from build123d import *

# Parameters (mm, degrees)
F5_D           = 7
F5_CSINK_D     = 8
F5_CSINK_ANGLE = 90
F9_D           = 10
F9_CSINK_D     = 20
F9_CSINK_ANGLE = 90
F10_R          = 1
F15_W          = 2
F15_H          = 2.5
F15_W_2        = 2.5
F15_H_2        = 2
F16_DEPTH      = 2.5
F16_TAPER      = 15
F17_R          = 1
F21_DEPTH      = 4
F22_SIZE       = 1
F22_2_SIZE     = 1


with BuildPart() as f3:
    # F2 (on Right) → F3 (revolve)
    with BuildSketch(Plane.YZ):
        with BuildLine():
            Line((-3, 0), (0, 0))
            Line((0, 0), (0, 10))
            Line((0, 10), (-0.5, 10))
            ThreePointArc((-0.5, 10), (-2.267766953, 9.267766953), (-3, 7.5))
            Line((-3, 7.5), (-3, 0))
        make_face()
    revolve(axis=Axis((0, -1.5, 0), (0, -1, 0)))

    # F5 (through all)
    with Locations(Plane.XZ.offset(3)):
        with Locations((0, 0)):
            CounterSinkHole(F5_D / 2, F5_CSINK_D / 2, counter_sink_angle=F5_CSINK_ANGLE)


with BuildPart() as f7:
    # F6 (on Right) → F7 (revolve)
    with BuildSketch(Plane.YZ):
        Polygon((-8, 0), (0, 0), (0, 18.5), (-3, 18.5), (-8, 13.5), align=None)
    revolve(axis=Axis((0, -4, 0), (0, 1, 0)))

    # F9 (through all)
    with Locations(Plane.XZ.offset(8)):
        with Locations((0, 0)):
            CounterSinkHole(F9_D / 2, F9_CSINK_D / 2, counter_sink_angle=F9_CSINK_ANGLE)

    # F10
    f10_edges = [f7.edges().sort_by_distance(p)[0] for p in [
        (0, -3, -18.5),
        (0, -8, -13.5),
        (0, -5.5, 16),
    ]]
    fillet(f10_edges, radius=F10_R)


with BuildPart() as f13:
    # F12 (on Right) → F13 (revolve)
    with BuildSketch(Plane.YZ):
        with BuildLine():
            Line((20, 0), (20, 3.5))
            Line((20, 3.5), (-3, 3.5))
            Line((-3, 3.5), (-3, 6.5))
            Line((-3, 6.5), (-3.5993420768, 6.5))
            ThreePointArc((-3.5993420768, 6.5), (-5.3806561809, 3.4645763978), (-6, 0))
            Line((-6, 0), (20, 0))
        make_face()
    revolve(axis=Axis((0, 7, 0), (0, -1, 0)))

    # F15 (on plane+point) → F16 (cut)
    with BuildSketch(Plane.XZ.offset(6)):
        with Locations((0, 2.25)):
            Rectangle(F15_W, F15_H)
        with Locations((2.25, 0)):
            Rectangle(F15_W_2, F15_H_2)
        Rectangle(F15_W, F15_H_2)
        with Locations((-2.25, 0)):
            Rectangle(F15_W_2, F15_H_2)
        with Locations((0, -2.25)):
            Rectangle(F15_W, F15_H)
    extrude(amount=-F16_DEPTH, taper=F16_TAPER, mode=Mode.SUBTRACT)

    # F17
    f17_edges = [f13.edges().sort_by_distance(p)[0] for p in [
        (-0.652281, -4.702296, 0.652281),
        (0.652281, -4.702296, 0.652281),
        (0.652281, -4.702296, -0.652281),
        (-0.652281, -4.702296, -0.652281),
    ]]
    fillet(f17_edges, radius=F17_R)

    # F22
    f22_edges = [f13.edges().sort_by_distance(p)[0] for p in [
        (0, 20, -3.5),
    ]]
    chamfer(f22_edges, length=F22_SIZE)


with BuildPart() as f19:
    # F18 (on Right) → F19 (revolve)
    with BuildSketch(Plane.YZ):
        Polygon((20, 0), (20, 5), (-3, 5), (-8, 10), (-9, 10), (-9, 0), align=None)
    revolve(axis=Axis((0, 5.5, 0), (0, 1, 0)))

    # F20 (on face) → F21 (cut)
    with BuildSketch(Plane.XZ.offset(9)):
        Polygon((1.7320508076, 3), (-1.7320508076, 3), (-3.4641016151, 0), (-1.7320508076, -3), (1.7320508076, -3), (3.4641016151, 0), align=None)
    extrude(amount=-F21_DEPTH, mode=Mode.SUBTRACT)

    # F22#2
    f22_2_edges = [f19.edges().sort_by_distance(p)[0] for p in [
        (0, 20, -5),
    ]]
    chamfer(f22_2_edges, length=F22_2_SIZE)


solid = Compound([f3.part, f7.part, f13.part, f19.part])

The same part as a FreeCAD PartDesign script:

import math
import FreeCAD as App
import Part
import Sketcher
Q = App.Units.Quantity


def edges_at(feature, points):
    """Names of the edges that pass closest to the given points."""
    edges = feature.Shape.Edges
    near = lambda p: min(range(len(edges)), key=lambda i: edges[i].distToShape(Part.Vertex(*p))[0])
    return sorted({f"Edge{near(p) + 1}" for p in points})

doc = App.newDocument("Part")
params = doc.addObject("Spreadsheet::Sheet", "Params")
for row, (alias, value) in enumerate([
    ("sketch1_radius", "2.5 mm"),
    ("sketch1_width", "3 mm"),
    ("sketch1_height", "10 mm"),
    ("revolution_angle", "360 deg"),
    ("sketch2_diameter", "7 mm"),
    ("hole_diameter", "7 mm"),
    ("hole_csink_diameter", "8 mm"),
    ("sketch3_width", "8 mm"),
    ("sketch3_width2", "3 mm"),
    ("sketch3_height", "18.5 mm"),
    ("revolution2_angle", "360 deg"),
    ("sketch4_diameter", "10 mm"),
    ("hole2_diameter", "10 mm"),
    ("hole2_csink_diameter", "20 mm"),
    ("fillet_radius", "1 mm"),
    ("sketch5_radius", "10 mm"),
    ("sketch5_width", "23 mm"),
    ("sketch5_width2", "26 mm"),
    ("sketch5_height", "3 mm"),
    ("sketch5_height2", "3.5 mm"),
    ("revolution3_angle", "360 deg"),
    ("sketch6_width", "2 mm"),
    ("sketch6_width2", "2.5 mm"),
    ("pocket1_length", "2.5 mm"),
    ("pocket1_taper", "-15 deg"),
    ("fillet2_radius", "1 mm"),
    ("chamfer_size", "1 mm"),
    ("sketch7_width", "23 mm"),
    ("sketch7_width2", "1 mm"),
    ("sketch7_width3", "29 mm"),
    ("sketch7_height", "5 mm"),
    ("sketch7_height2", "10 mm"),
    ("revolution4_angle", "360 deg"),
    ("pocket2_length", "4 mm"),
    ("chamfer2_size", "1 mm"),
], start=1):
    params.set(f"A{row}", alias)
    params.set(f"B{row}", "=" + value)
    params.setAlias(f"B{row}", alias)

body = doc.addObject("PartDesign::Body", "Body")

# Sketch on YZ plane
sketch1 = doc.addObject("Sketcher::SketchObject", "Sketch")
body.addObject(sketch1)
sketch1.AttachmentSupport = (doc.YZ_Plane, [""])
sketch1.MapMode = "FlatFace"
sketch1.addGeometry([
    Part.LineSegment(App.Vector(-3, 0, 0), App.Vector(0, 0, 0)),  # 0
    Part.LineSegment(App.Vector(0, 0, 0), App.Vector(0, 10, 0)),  # 1
    Part.LineSegment(App.Vector(0, 10, 0), App.Vector(-0.5, 10, 0)),  # 2
    Part.ArcOfCircle(Part.Circle(App.Vector(-0.5, 7.5, 0), App.Vector(0, 0, 1), 2.5), math.radians(90), math.radians(180)),  # 3
    Part.LineSegment(App.Vector(-3, 7.5, 0), App.Vector(-3, 0, 0)),  # 4
], False)
sketch1.addConstraint([
    Sketcher.Constraint("Coincident", 0, 2, 1, 1),
    Sketcher.Constraint("Coincident", 1, 2, 2, 1),
    Sketcher.Constraint("Tangent", 2, 2, 3, 1),
    Sketcher.Constraint("Tangent", 3, 2, 4, 1),
    Sketcher.Constraint("Coincident", 4, 2, 0, 1),
    Sketcher.Constraint("Horizontal", 0),
    Sketcher.Constraint("Vertical", 1),
    Sketcher.Constraint("Horizontal", 2),
    Sketcher.Constraint("Vertical", 4),
    Sketcher.Constraint("Coincident", 0, 2, -1, 1),
    Sketcher.Constraint("Radius", 3, Q("2.5 mm")),
    Sketcher.Constraint("DistanceX", 0, 1, 0, 2, Q("3 mm")),
    Sketcher.Constraint("DistanceY", 1, 1, 1, 2, Q("10 mm")),
])
sketch1.setExpression("Constraints[10]", "Params.sketch1_radius")
sketch1.setExpression("Constraints[11]", "Params.sketch1_width")
sketch1.setExpression("Constraints[12]", "Params.sketch1_height")
revolution = doc.addObject("PartDesign::Revolution", "Revolution")
body.addObject(revolution)
revolution.Profile = sketch1
revolution.ReferenceAxis = (sketch1, ["H_Axis"])
revolution.setExpression("Angle", "Params.revolution_angle")

# Sketch on XZ plane
sketch2 = doc.addObject("Sketcher::SketchObject", "Sketch001")
body.addObject(sketch2)
sketch2.AttachmentSupport = (doc.XZ_Plane, [""])
sketch2.MapMode = "FlatFace"
sketch2.AttachmentOffset = App.Placement(App.Vector(0, 0, 3), App.Rotation())
sketch2.addGeometry(Part.Circle(App.Vector(0, 0, 0), App.Vector(0, 0, 1), 3.5), False)
sketch2.addConstraint([
    Sketcher.Constraint("Coincident", 0, 3, -1, 1),
    Sketcher.Constraint("Diameter", 0, Q("7 mm")),
])
sketch2.setExpression("Constraints[1]", "Params.sketch2_diameter")
doc.recompute()
hole = doc.addObject("PartDesign::Hole", "Hole")
body.addObject(hole)
hole.Profile = sketch2
hole.ThreadType = "None"
hole.setExpression("Diameter", "Params.hole_diameter")
hole.DepthType = "ThroughAll"
hole.HoleCutType = "Countersink"
hole.setExpression("HoleCutDiameter", "Params.hole_csink_diameter")
hole.HoleCutCountersinkAngle = 90
body2 = doc.addObject("PartDesign::Body", "Body001")

# Sketch on YZ plane
sketch3 = doc.addObject("Sketcher::SketchObject", "Sketch002")
body2.addObject(sketch3)
sketch3.AttachmentSupport = (doc.getObject("YZ_Plane001"), [""])
sketch3.MapMode = "FlatFace"
sketch3.addGeometry([
    Part.LineSegment(App.Vector(-8, 0, 0), App.Vector(0, 0, 0)),  # 0
    Part.LineSegment(App.Vector(0, 0, 0), App.Vector(0, 18.5, 0)),  # 1
    Part.LineSegment(App.Vector(0, 18.5, 0), App.Vector(-3, 18.5, 0)),  # 2
    Part.LineSegment(App.Vector(-3, 18.5, 0), App.Vector(-8, 13.5, 0)),  # 3
    Part.LineSegment(App.Vector(-8, 13.5, 0), App.Vector(-8, 0, 0)),  # 4
], False)
sketch3.addConstraint([
    Sketcher.Constraint("Coincident", 0, 2, 1, 1),
    Sketcher.Constraint("Coincident", 1, 2, 2, 1),
    Sketcher.Constraint("Coincident", 2, 2, 3, 1),
    Sketcher.Constraint("Coincident", 3, 2, 4, 1),
    Sketcher.Constraint("Coincident", 4, 2, 0, 1),
    Sketcher.Constraint("Horizontal", 0),
    Sketcher.Constraint("Vertical", 1),
    Sketcher.Constraint("Horizontal", 2),
    Sketcher.Constraint("Vertical", 4),
    Sketcher.Constraint("Coincident", 0, 2, -1, 1),
    Sketcher.Constraint("DistanceX", 0, 1, 0, 2, Q("8 mm")),
    Sketcher.Constraint("DistanceX", 2, 2, 2, 1, Q("3 mm")),
    Sketcher.Constraint("Angle", 3, Q("-135 deg")),
    Sketcher.Constraint("DistanceY", 1, 1, 1, 2, Q("18.5 mm")),
])
sketch3.setExpression("Constraints[10]", "Params.sketch3_width")
sketch3.setExpression("Constraints[11]", "Params.sketch3_width2")
sketch3.setExpression("Constraints[13]", "Params.sketch3_height")
revolution2 = doc.addObject("PartDesign::Revolution", "Revolution001")
body2.addObject(revolution2)
revolution2.Profile = sketch3
revolution2.ReferenceAxis = (sketch3, ["H_Axis"])
revolution2.setExpression("Angle", "Params.revolution2_angle")

# Sketch on XZ plane
sketch4 = doc.addObject("Sketcher::SketchObject", "Sketch003")
body2.addObject(sketch4)
sketch4.AttachmentSupport = (doc.getObject("XZ_Plane001"), [""])
sketch4.MapMode = "FlatFace"
sketch4.AttachmentOffset = App.Placement(App.Vector(0, 0, 8), App.Rotation())
sketch4.addGeometry(Part.Circle(App.Vector(0, 0, 0), App.Vector(0, 0, 1), 5), False)
sketch4.addConstraint([
    Sketcher.Constraint("Coincident", 0, 3, -1, 1),
    Sketcher.Constraint("Diameter", 0, Q("10 mm")),
])
sketch4.setExpression("Constraints[1]", "Params.sketch4_diameter")
doc.recompute()
hole2 = doc.addObject("PartDesign::Hole", "Hole001")
body2.addObject(hole2)
hole2.Profile = sketch4
hole2.ThreadType = "None"
hole2.setExpression("Diameter", "Params.hole2_diameter")
hole2.DepthType = "ThroughAll"
hole2.HoleCutType = "Countersink"
hole2.setExpression("HoleCutDiameter", "Params.hole2_csink_diameter")
hole2.HoleCutCountersinkAngle = 90
doc.recompute()

fillet = doc.addObject("PartDesign::Fillet", "Fillet")
body2.addObject(fillet)
fillet.Base = (hole2, edges_at(hole2, [(0, -3, -18.5), (0, -8, -13.5), (0, -5.5, 16)]))
fillet.setExpression("Radius", "Params.fillet_radius")
body3 = doc.addObject("PartDesign::Body", "Body002")

# Sketch on YZ plane
sketch5 = doc.addObject("Sketcher::SketchObject", "Sketch004")
body3.addObject(sketch5)
sketch5.AttachmentSupport = (doc.getObject("YZ_Plane002"), [""])
sketch5.MapMode = "FlatFace"
sketch5.addGeometry([
    Part.LineSegment(App.Vector(20, 0, 0), App.Vector(20, 3.5, 0)),  # 0
    Part.LineSegment(App.Vector(20, 3.5, 0), App.Vector(-3, 3.5, 0)),  # 1
    Part.LineSegment(App.Vector(-3, 3.5, 0), App.Vector(-3, 6.5, 0)),  # 2
    Part.LineSegment(App.Vector(-3, 6.5, 0), App.Vector(-3.599342, 6.5, 0)),  # 3
    Part.ArcOfCircle(Part.Circle(App.Vector(4, 0, 0), App.Vector(0, 0, 1), 10), math.radians(139.458398), math.radians(180)),  # 4
    Part.LineSegment(App.Vector(-6, 0, 0), App.Vector(20, 0, 0)),  # 5
], False)
sketch5.addConstraint([
    Sketcher.Constraint("Coincident", 0, 2, 1, 1),
    Sketcher.Constraint("Coincident", 1, 2, 2, 1),
    Sketcher.Constraint("Coincident", 2, 2, 3, 1),
    Sketcher.Constraint("Coincident", 3, 2, 4, 1),
    Sketcher.Constraint("Coincident", 4, 2, 5, 1),
    Sketcher.Constraint("Coincident", 5, 2, 0, 1),
    Sketcher.Constraint("Vertical", 0),
    Sketcher.Constraint("Horizontal", 1),
    Sketcher.Constraint("Vertical", 2),
    Sketcher.Constraint("Horizontal", 3),
    Sketcher.Constraint("Horizontal", 5),
    Sketcher.Constraint("PointOnObject", 4, 3, -1),
    Sketcher.Constraint("PointOnObject", 4, 2, -1),
    Sketcher.Constraint("Radius", 4, Q("10 mm")),
    Sketcher.Constraint("DistanceX", 1, 2, 1, 1, Q("23 mm")),
    Sketcher.Constraint("DistanceX", 5, 1, 5, 2, Q("26 mm")),
    Sketcher.Constraint("DistanceY", 2, 1, 2, 2, Q("3 mm")),
    Sketcher.Constraint("DistanceY", 0, 1, 0, 2, Q("3.5 mm")),
    Sketcher.Constraint("DistanceX", -1, 1, 4, 3, Q("4 mm")),
])
sketch5.setExpression("Constraints[13]", "Params.sketch5_radius")
sketch5.setExpression("Constraints[14]", "Params.sketch5_width")
sketch5.setExpression("Constraints[15]", "Params.sketch5_width2")
sketch5.setExpression("Constraints[16]", "Params.sketch5_height")
sketch5.setExpression("Constraints[17]", "Params.sketch5_height2")
revolution3 = doc.addObject("PartDesign::Revolution", "Revolution002")
body3.addObject(revolution3)
revolution3.Profile = sketch5
revolution3.ReferenceAxis = (sketch5, ["H_Axis"])
revolution3.setExpression("Angle", "Params.revolution3_angle")

# Sketch on XZ plane
sketch6 = doc.addObject("Sketcher::SketchObject", "Sketch005")
body3.addObject(sketch6)
sketch6.AttachmentSupport = (doc.getObject("XZ_Plane002"), [""])
sketch6.MapMode = "FlatFace"
sketch6.AttachmentOffset = App.Placement(App.Vector(0, 0, 6), App.Rotation())
sketch6.addGeometry([
    Part.LineSegment(App.Vector(-1, 3.5, 0), App.Vector(-1, 1, 0)),  # 0
    Part.LineSegment(App.Vector(-1, 1, 0), App.Vector(-3.5, 1, 0)),  # 1
    Part.LineSegment(App.Vector(-3.5, 1, 0), App.Vector(-3.5, -1, 0)),  # 2
    Part.LineSegment(App.Vector(-3.5, -1, 0), App.Vector(-1, -1, 0)),  # 3
    Part.LineSegment(App.Vector(-1, -1, 0), App.Vector(-1, -3.5, 0)),  # 4
    Part.LineSegment(App.Vector(-1, -3.5, 0), App.Vector(1, -3.5, 0)),  # 5
    Part.LineSegment(App.Vector(1, -3.5, 0), App.Vector(1, -1, 0)),  # 6
    Part.LineSegment(App.Vector(1, -1, 0), App.Vector(3.5, -1, 0)),  # 7
    Part.LineSegment(App.Vector(3.5, -1, 0), App.Vector(3.5, 1, 0)),  # 8
    Part.LineSegment(App.Vector(3.5, 1, 0), App.Vector(1, 1, 0)),  # 9
    Part.LineSegment(App.Vector(1, 1, 0), App.Vector(1, 3.5, 0)),  # 10
    Part.LineSegment(App.Vector(1, 3.5, 0), App.Vector(-1, 3.5, 0)),  # 11
], False)
sketch6.addConstraint([
    Sketcher.Constraint("Coincident", 0, 2, 1, 1),
    Sketcher.Constraint("Coincident", 1, 2, 2, 1),
    Sketcher.Constraint("Coincident", 2, 2, 3, 1),
    Sketcher.Constraint("Coincident", 3, 2, 4, 1),
    Sketcher.Constraint("Coincident", 4, 2, 5, 1),
    Sketcher.Constraint("Coincident", 5, 2, 6, 1),
    Sketcher.Constraint("Coincident", 6, 2, 7, 1),
    Sketcher.Constraint("Coincident", 7, 2, 8, 1),
    Sketcher.Constraint("Coincident", 8, 2, 9, 1),
    Sketcher.Constraint("Coincident", 9, 2, 10, 1),
    Sketcher.Constraint("Coincident", 10, 2, 11, 1),
    Sketcher.Constraint("Coincident", 11, 2, 0, 1),
    Sketcher.Constraint("Vertical", 0),
    Sketcher.Constraint("Horizontal", 1),
    Sketcher.Constraint("Vertical", 2),
    Sketcher.Constraint("Horizontal", 3),
    Sketcher.Constraint("Vertical", 4),
    Sketcher.Constraint("Horizontal", 5),
    Sketcher.Constraint("Vertical", 6),
    Sketcher.Constraint("Horizontal", 7),
    Sketcher.Constraint("Vertical", 8),
    Sketcher.Constraint("Horizontal", 9),
    Sketcher.Constraint("Vertical", 10),
    Sketcher.Constraint("Horizontal", 11),
    Sketcher.Constraint("Symmetric", 0, 2, 6, 2, -1, 1),
    Sketcher.Constraint("Symmetric", 2, 2, 8, 2, -1, 1),
    Sketcher.Constraint("Symmetric", 4, 2, 10, 2, -1, 1),
    Sketcher.Constraint("Symmetric", 3, 2, 6, 2, -2),
    Sketcher.Constraint("Equal", 9, 0),
    Sketcher.Constraint("Equal", 11, 2),
    Sketcher.Constraint("DistanceX", 5, 1, 5, 2, Q("2 mm")),
    Sketcher.Constraint("DistanceX", 1, 2, 1, 1, Q("2.5 mm")),
])
sketch6.setExpression("Constraints[30]", "Params.sketch6_width")
sketch6.setExpression("Constraints[31]", "Params.sketch6_width2")
pocket1 = doc.addObject("PartDesign::Pocket", "Pocket")
body3.addObject(pocket1)
pocket1.Profile = sketch6
pocket1.setExpression("Length", "Params.pocket1_length")
pocket1.setExpression("TaperAngle", "Params.pocket1_taper")
doc.recompute()

fillet2 = doc.addObject("PartDesign::Fillet", "Fillet001")
body3.addObject(fillet2)
fillet2.Base = (pocket1, edges_at(pocket1, [
    (-0.652, -4.702, 0.652),
    (0.652, -4.702, 0.652),
    (0.652, -4.702, -0.652),
    (-0.652, -4.702, -0.652),
]))
fillet2.setExpression("Radius", "Params.fillet2_radius")
doc.recompute()

chamfer = doc.addObject("PartDesign::Chamfer", "Chamfer")
body3.addObject(chamfer)
chamfer.Base = (fillet2, edges_at(fillet2, [(0, 20, -3.5)]))
chamfer.setExpression("Size", "Params.chamfer_size")
body4 = doc.addObject("PartDesign::Body", "Body003")

# Sketch on YZ plane
sketch7 = doc.addObject("Sketcher::SketchObject", "Sketch006")
body4.addObject(sketch7)
sketch7.AttachmentSupport = (doc.getObject("YZ_Plane003"), [""])
sketch7.MapMode = "FlatFace"
sketch7.addGeometry([
    Part.LineSegment(App.Vector(20, 0, 0), App.Vector(20, 5, 0)),  # 0
    Part.LineSegment(App.Vector(20, 5, 0), App.Vector(-3, 5, 0)),  # 1
    Part.LineSegment(App.Vector(-3, 5, 0), App.Vector(-8, 10, 0)),  # 2
    Part.LineSegment(App.Vector(-8, 10, 0), App.Vector(-9, 10, 0)),  # 3
    Part.LineSegment(App.Vector(-9, 10, 0), App.Vector(-9, 0, 0)),  # 4
    Part.LineSegment(App.Vector(-9, 0, 0), App.Vector(20, 0, 0)),  # 5
], False)
sketch7.addConstraint([
    Sketcher.Constraint("Coincident", 0, 2, 1, 1),
    Sketcher.Constraint("Coincident", 1, 2, 2, 1),
    Sketcher.Constraint("Coincident", 2, 2, 3, 1),
    Sketcher.Constraint("Coincident", 3, 2, 4, 1),
    Sketcher.Constraint("Coincident", 4, 2, 5, 1),
    Sketcher.Constraint("Coincident", 5, 2, 0, 1),
    Sketcher.Constraint("Vertical", 0),
    Sketcher.Constraint("Horizontal", 1),
    Sketcher.Constraint("Horizontal", 3),
    Sketcher.Constraint("Vertical", 4),
    Sketcher.Constraint("Horizontal", 5),
    Sketcher.Constraint("PointOnObject", 4, 2, -1),
    Sketcher.Constraint("DistanceX", 1, 2, 1, 1, Q("23 mm")),
    Sketcher.Constraint("DistanceX", 3, 2, 3, 1, Q("1 mm")),
    Sketcher.Constraint("DistanceX", 5, 1, 5, 2, Q("29 mm")),
    Sketcher.Constraint("DistanceY", 0, 1, 0, 2, Q("5 mm")),
    Sketcher.Constraint("DistanceY", 4, 2, 4, 1, Q("10 mm")),
    Sketcher.Constraint("DistanceX", -1, 1, 0, 2, Q("20 mm")),
])
sketch7.setExpression("Constraints[12]", "Params.sketch7_width")
sketch7.setExpression("Constraints[13]", "Params.sketch7_width2")
sketch7.setExpression("Constraints[14]", "Params.sketch7_width3")
sketch7.setExpression("Constraints[15]", "Params.sketch7_height")
sketch7.setExpression("Constraints[16]", "Params.sketch7_height2")
revolution4 = doc.addObject("PartDesign::Revolution", "Revolution003")
body4.addObject(revolution4)
revolution4.Profile = sketch7
revolution4.ReferenceAxis = (sketch7, ["H_Axis"])
revolution4.setExpression("Angle", "Params.revolution4_angle")

# Sketch on XZ plane
sketch8 = doc.addObject("Sketcher::SketchObject", "Sketch007")
body4.addObject(sketch8)
sketch8.AttachmentSupport = (doc.getObject("XZ_Plane003"), [""])
sketch8.MapMode = "FlatFace"
sketch8.AttachmentOffset = App.Placement(App.Vector(0, 0, 9), App.Rotation())
sketch8.addGeometry([
    Part.LineSegment(App.Vector(1.732051, 3, 0), App.Vector(-1.732051, 3, 0)),  # 0
    Part.LineSegment(App.Vector(-1.732051, 3, 0), App.Vector(-3.464102, 0, 0)),  # 1
    Part.LineSegment(App.Vector(-3.464102, 0, 0), App.Vector(-1.732051, -3, 0)),  # 2
    Part.LineSegment(App.Vector(-1.732051, -3, 0), App.Vector(1.732051, -3, 0)),  # 3
    Part.LineSegment(App.Vector(1.732051, -3, 0), App.Vector(3.464102, 0, 0)),  # 4
    Part.LineSegment(App.Vector(3.464102, 0, 0), App.Vector(1.732051, 3, 0)),  # 5
], False)
sketch8.addConstraint([
    Sketcher.Constraint("Coincident", 0, 2, 1, 1),
    Sketcher.Constraint("Coincident", 1, 2, 2, 1),
    Sketcher.Constraint("Coincident", 2, 2, 3, 1),
    Sketcher.Constraint("Coincident", 3, 2, 4, 1),
    Sketcher.Constraint("Coincident", 4, 2, 5, 1),
    Sketcher.Constraint("Coincident", 5, 2, 0, 1),
    Sketcher.Constraint("Horizontal", 0),
    Sketcher.Constraint("Horizontal", 3),
    Sketcher.Constraint("Symmetric", 0, 2, 3, 2, -1, 1),
    Sketcher.Constraint("Symmetric", 1, 2, 4, 2, -1, 1),
    Sketcher.Constraint("PointOnObject", 1, 2, -1),
    Sketcher.Constraint("Parallel", 2, 5),
    Sketcher.Constraint("Vertical", 0, 2, 2, 2),
    Sketcher.Constraint("Angle", 1, Q("-120 deg")),
    Sketcher.Constraint("DistanceY", -1, 1, 0, 2, Q("3 mm")),
    Sketcher.Constraint("DistanceX", 0, 2, 0, 1, Q("3.464102 mm")),
])
pocket2 = doc.addObject("PartDesign::Pocket", "Pocket001")
body4.addObject(pocket2)
pocket2.Profile = sketch8
pocket2.setExpression("Length", "Params.pocket2_length")
doc.recompute()

chamfer2 = doc.addObject("PartDesign::Chamfer", "Chamfer001")
body4.addObject(chamfer2)
chamfer2.Base = (pocket2, edges_at(pocket2, [(0, 20, -5)]))
chamfer2.setExpression("Size", "Params.chamfer2_size")

doc.recompute()
